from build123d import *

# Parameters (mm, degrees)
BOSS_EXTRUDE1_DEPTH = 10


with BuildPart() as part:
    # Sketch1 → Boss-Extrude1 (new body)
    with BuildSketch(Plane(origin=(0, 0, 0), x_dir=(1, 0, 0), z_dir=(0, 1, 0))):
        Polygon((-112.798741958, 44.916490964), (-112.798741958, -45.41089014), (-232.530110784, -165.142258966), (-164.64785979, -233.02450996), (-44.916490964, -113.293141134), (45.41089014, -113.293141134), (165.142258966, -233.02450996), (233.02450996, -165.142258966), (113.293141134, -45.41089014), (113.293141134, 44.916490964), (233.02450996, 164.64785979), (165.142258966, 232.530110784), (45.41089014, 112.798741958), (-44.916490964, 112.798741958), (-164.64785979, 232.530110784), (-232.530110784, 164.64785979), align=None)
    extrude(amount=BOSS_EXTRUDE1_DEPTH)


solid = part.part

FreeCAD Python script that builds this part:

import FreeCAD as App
import Part
import Sketcher
from FreeCAD import Vector
Q = App.Units.Quantity


def add_polygon(sketch, points):
    """Adds a closed chain of lines whose ends are joined by coincident constraints."""
    first, n = sketch.GeometryCount, len(points)
    for a, b in zip(points, points[1:] + points[:1]):
        sketch.addGeometry(Part.LineSegment(App.Vector(*a, 0), App.Vector(*b, 0)), False)
    for i in range(n):
        sketch.addConstraint(Sketcher.Constraint("Coincident", first + i, 2, first + (i + 1) % n, 1))

doc = App.newDocument("Part")
body = doc.addObject("PartDesign::Body", "Body")

# Sketch on XZ plane
sketch1 = body.newObject("Sketcher::SketchObject", "Sketch")
sketch1.AttachmentSupport = (doc.getObject("XZ_Plane"), [""])
sketch1.MapMode = "FlatFace"
add_polygon(sketch1, [(-112.798742, -44.916491), (-112.798742, 45.41089), (-232.530111, 165.142259), (-164.64786, 233.02451), (-44.916491, 113.293141), (45.41089, 113.293141), (165.142259, 233.02451), (233.02451, 165.142259), (113.293141, 45.41089), (113.293141, -44.916491), (233.02451, -164.64786), (165.142259, -232.530111), (45.41089, -112.798742), (-44.916491, -112.798742), (-164.64786, -232.530111), (-232.530111, -164.64786)])  # lines 0-15
sketch1.addConstraint([
    Sketcher.Constraint("Vertical", 0),
    Sketcher.Constraint("Horizontal", 4),
    Sketcher.Constraint("Vertical", 8),
    Sketcher.Constraint("Horizontal", 12),
    Sketcher.Constraint("Perpendicular", 1, 2),
    Sketcher.Constraint("Perpendicular", 2, 3),
    Sketcher.Constraint("Perpendicular", 3, 5),
    Sketcher.Constraint("Perpendicular", 5, 6),
    Sketcher.Constraint("Perpendicular", 6, 7),
    Sketcher.Constraint("Perpendicular", 7, 9),
    Sketcher.Constraint("Perpendicular", 9, 10),
    Sketcher.Constraint("Perpendicular", 10, 11),
    Sketcher.Constraint("Perpendicular", 11, 13),
    Sketcher.Constraint("Perpendicular", 13, 14),
    Sketcher.Constraint("Perpendicular", 14, 15),
    Sketcher.Constraint("Horizontal", 2, 2, 5, 2),
    Sketcher.Constraint("Horizontal", 1, 2, 6, 2),
    Sketcher.Constraint("Horizontal", 0, 2, 7, 2),
    Sketcher.Constraint("Horizontal", 10, 2, 13, 2),
    Sketcher.Constraint("Horizontal", 9, 2, 14, 2),
    Sketcher.Constraint("Horizontal", 8, 2, 15, 2),
    Sketcher.Constraint("Vertical", 6, 2, 9, 2),
    Sketcher.Constraint("Vertical", 5, 2, 10, 2),
    Sketcher.Constraint("Vertical", 4, 2, 11, 2),
    Sketcher.Constraint("Vertical", 3, 2, 12, 2),
    Sketcher.Constraint("Equal", 12, 0),
    Sketcher.Constraint("Equal", 1, 3),
    Sketcher.Constraint("Distance", 2, Q("96 mm")),
    Sketcher.Constraint("DistanceX", 1, 2, 4, 2, Q("277.941001 mm")),
    Sketcher.Constraint("DistanceX", 4, 1, 4, 2, Q("90.327381 mm")),
    Sketcher.Constraint("DistanceX", 0, 2, -1, 1, Q("112.798742 mm")),
    Sketcher.Constraint("DistanceY", -1, 1, 0, 2, Q("45.41089 mm")),
])
pad1 = body.newObject("PartDesign::Pad", "Pad")
pad1.Profile = sketch1
pad1.Length = 10
pad1.Reversed = True

doc.recompute()
